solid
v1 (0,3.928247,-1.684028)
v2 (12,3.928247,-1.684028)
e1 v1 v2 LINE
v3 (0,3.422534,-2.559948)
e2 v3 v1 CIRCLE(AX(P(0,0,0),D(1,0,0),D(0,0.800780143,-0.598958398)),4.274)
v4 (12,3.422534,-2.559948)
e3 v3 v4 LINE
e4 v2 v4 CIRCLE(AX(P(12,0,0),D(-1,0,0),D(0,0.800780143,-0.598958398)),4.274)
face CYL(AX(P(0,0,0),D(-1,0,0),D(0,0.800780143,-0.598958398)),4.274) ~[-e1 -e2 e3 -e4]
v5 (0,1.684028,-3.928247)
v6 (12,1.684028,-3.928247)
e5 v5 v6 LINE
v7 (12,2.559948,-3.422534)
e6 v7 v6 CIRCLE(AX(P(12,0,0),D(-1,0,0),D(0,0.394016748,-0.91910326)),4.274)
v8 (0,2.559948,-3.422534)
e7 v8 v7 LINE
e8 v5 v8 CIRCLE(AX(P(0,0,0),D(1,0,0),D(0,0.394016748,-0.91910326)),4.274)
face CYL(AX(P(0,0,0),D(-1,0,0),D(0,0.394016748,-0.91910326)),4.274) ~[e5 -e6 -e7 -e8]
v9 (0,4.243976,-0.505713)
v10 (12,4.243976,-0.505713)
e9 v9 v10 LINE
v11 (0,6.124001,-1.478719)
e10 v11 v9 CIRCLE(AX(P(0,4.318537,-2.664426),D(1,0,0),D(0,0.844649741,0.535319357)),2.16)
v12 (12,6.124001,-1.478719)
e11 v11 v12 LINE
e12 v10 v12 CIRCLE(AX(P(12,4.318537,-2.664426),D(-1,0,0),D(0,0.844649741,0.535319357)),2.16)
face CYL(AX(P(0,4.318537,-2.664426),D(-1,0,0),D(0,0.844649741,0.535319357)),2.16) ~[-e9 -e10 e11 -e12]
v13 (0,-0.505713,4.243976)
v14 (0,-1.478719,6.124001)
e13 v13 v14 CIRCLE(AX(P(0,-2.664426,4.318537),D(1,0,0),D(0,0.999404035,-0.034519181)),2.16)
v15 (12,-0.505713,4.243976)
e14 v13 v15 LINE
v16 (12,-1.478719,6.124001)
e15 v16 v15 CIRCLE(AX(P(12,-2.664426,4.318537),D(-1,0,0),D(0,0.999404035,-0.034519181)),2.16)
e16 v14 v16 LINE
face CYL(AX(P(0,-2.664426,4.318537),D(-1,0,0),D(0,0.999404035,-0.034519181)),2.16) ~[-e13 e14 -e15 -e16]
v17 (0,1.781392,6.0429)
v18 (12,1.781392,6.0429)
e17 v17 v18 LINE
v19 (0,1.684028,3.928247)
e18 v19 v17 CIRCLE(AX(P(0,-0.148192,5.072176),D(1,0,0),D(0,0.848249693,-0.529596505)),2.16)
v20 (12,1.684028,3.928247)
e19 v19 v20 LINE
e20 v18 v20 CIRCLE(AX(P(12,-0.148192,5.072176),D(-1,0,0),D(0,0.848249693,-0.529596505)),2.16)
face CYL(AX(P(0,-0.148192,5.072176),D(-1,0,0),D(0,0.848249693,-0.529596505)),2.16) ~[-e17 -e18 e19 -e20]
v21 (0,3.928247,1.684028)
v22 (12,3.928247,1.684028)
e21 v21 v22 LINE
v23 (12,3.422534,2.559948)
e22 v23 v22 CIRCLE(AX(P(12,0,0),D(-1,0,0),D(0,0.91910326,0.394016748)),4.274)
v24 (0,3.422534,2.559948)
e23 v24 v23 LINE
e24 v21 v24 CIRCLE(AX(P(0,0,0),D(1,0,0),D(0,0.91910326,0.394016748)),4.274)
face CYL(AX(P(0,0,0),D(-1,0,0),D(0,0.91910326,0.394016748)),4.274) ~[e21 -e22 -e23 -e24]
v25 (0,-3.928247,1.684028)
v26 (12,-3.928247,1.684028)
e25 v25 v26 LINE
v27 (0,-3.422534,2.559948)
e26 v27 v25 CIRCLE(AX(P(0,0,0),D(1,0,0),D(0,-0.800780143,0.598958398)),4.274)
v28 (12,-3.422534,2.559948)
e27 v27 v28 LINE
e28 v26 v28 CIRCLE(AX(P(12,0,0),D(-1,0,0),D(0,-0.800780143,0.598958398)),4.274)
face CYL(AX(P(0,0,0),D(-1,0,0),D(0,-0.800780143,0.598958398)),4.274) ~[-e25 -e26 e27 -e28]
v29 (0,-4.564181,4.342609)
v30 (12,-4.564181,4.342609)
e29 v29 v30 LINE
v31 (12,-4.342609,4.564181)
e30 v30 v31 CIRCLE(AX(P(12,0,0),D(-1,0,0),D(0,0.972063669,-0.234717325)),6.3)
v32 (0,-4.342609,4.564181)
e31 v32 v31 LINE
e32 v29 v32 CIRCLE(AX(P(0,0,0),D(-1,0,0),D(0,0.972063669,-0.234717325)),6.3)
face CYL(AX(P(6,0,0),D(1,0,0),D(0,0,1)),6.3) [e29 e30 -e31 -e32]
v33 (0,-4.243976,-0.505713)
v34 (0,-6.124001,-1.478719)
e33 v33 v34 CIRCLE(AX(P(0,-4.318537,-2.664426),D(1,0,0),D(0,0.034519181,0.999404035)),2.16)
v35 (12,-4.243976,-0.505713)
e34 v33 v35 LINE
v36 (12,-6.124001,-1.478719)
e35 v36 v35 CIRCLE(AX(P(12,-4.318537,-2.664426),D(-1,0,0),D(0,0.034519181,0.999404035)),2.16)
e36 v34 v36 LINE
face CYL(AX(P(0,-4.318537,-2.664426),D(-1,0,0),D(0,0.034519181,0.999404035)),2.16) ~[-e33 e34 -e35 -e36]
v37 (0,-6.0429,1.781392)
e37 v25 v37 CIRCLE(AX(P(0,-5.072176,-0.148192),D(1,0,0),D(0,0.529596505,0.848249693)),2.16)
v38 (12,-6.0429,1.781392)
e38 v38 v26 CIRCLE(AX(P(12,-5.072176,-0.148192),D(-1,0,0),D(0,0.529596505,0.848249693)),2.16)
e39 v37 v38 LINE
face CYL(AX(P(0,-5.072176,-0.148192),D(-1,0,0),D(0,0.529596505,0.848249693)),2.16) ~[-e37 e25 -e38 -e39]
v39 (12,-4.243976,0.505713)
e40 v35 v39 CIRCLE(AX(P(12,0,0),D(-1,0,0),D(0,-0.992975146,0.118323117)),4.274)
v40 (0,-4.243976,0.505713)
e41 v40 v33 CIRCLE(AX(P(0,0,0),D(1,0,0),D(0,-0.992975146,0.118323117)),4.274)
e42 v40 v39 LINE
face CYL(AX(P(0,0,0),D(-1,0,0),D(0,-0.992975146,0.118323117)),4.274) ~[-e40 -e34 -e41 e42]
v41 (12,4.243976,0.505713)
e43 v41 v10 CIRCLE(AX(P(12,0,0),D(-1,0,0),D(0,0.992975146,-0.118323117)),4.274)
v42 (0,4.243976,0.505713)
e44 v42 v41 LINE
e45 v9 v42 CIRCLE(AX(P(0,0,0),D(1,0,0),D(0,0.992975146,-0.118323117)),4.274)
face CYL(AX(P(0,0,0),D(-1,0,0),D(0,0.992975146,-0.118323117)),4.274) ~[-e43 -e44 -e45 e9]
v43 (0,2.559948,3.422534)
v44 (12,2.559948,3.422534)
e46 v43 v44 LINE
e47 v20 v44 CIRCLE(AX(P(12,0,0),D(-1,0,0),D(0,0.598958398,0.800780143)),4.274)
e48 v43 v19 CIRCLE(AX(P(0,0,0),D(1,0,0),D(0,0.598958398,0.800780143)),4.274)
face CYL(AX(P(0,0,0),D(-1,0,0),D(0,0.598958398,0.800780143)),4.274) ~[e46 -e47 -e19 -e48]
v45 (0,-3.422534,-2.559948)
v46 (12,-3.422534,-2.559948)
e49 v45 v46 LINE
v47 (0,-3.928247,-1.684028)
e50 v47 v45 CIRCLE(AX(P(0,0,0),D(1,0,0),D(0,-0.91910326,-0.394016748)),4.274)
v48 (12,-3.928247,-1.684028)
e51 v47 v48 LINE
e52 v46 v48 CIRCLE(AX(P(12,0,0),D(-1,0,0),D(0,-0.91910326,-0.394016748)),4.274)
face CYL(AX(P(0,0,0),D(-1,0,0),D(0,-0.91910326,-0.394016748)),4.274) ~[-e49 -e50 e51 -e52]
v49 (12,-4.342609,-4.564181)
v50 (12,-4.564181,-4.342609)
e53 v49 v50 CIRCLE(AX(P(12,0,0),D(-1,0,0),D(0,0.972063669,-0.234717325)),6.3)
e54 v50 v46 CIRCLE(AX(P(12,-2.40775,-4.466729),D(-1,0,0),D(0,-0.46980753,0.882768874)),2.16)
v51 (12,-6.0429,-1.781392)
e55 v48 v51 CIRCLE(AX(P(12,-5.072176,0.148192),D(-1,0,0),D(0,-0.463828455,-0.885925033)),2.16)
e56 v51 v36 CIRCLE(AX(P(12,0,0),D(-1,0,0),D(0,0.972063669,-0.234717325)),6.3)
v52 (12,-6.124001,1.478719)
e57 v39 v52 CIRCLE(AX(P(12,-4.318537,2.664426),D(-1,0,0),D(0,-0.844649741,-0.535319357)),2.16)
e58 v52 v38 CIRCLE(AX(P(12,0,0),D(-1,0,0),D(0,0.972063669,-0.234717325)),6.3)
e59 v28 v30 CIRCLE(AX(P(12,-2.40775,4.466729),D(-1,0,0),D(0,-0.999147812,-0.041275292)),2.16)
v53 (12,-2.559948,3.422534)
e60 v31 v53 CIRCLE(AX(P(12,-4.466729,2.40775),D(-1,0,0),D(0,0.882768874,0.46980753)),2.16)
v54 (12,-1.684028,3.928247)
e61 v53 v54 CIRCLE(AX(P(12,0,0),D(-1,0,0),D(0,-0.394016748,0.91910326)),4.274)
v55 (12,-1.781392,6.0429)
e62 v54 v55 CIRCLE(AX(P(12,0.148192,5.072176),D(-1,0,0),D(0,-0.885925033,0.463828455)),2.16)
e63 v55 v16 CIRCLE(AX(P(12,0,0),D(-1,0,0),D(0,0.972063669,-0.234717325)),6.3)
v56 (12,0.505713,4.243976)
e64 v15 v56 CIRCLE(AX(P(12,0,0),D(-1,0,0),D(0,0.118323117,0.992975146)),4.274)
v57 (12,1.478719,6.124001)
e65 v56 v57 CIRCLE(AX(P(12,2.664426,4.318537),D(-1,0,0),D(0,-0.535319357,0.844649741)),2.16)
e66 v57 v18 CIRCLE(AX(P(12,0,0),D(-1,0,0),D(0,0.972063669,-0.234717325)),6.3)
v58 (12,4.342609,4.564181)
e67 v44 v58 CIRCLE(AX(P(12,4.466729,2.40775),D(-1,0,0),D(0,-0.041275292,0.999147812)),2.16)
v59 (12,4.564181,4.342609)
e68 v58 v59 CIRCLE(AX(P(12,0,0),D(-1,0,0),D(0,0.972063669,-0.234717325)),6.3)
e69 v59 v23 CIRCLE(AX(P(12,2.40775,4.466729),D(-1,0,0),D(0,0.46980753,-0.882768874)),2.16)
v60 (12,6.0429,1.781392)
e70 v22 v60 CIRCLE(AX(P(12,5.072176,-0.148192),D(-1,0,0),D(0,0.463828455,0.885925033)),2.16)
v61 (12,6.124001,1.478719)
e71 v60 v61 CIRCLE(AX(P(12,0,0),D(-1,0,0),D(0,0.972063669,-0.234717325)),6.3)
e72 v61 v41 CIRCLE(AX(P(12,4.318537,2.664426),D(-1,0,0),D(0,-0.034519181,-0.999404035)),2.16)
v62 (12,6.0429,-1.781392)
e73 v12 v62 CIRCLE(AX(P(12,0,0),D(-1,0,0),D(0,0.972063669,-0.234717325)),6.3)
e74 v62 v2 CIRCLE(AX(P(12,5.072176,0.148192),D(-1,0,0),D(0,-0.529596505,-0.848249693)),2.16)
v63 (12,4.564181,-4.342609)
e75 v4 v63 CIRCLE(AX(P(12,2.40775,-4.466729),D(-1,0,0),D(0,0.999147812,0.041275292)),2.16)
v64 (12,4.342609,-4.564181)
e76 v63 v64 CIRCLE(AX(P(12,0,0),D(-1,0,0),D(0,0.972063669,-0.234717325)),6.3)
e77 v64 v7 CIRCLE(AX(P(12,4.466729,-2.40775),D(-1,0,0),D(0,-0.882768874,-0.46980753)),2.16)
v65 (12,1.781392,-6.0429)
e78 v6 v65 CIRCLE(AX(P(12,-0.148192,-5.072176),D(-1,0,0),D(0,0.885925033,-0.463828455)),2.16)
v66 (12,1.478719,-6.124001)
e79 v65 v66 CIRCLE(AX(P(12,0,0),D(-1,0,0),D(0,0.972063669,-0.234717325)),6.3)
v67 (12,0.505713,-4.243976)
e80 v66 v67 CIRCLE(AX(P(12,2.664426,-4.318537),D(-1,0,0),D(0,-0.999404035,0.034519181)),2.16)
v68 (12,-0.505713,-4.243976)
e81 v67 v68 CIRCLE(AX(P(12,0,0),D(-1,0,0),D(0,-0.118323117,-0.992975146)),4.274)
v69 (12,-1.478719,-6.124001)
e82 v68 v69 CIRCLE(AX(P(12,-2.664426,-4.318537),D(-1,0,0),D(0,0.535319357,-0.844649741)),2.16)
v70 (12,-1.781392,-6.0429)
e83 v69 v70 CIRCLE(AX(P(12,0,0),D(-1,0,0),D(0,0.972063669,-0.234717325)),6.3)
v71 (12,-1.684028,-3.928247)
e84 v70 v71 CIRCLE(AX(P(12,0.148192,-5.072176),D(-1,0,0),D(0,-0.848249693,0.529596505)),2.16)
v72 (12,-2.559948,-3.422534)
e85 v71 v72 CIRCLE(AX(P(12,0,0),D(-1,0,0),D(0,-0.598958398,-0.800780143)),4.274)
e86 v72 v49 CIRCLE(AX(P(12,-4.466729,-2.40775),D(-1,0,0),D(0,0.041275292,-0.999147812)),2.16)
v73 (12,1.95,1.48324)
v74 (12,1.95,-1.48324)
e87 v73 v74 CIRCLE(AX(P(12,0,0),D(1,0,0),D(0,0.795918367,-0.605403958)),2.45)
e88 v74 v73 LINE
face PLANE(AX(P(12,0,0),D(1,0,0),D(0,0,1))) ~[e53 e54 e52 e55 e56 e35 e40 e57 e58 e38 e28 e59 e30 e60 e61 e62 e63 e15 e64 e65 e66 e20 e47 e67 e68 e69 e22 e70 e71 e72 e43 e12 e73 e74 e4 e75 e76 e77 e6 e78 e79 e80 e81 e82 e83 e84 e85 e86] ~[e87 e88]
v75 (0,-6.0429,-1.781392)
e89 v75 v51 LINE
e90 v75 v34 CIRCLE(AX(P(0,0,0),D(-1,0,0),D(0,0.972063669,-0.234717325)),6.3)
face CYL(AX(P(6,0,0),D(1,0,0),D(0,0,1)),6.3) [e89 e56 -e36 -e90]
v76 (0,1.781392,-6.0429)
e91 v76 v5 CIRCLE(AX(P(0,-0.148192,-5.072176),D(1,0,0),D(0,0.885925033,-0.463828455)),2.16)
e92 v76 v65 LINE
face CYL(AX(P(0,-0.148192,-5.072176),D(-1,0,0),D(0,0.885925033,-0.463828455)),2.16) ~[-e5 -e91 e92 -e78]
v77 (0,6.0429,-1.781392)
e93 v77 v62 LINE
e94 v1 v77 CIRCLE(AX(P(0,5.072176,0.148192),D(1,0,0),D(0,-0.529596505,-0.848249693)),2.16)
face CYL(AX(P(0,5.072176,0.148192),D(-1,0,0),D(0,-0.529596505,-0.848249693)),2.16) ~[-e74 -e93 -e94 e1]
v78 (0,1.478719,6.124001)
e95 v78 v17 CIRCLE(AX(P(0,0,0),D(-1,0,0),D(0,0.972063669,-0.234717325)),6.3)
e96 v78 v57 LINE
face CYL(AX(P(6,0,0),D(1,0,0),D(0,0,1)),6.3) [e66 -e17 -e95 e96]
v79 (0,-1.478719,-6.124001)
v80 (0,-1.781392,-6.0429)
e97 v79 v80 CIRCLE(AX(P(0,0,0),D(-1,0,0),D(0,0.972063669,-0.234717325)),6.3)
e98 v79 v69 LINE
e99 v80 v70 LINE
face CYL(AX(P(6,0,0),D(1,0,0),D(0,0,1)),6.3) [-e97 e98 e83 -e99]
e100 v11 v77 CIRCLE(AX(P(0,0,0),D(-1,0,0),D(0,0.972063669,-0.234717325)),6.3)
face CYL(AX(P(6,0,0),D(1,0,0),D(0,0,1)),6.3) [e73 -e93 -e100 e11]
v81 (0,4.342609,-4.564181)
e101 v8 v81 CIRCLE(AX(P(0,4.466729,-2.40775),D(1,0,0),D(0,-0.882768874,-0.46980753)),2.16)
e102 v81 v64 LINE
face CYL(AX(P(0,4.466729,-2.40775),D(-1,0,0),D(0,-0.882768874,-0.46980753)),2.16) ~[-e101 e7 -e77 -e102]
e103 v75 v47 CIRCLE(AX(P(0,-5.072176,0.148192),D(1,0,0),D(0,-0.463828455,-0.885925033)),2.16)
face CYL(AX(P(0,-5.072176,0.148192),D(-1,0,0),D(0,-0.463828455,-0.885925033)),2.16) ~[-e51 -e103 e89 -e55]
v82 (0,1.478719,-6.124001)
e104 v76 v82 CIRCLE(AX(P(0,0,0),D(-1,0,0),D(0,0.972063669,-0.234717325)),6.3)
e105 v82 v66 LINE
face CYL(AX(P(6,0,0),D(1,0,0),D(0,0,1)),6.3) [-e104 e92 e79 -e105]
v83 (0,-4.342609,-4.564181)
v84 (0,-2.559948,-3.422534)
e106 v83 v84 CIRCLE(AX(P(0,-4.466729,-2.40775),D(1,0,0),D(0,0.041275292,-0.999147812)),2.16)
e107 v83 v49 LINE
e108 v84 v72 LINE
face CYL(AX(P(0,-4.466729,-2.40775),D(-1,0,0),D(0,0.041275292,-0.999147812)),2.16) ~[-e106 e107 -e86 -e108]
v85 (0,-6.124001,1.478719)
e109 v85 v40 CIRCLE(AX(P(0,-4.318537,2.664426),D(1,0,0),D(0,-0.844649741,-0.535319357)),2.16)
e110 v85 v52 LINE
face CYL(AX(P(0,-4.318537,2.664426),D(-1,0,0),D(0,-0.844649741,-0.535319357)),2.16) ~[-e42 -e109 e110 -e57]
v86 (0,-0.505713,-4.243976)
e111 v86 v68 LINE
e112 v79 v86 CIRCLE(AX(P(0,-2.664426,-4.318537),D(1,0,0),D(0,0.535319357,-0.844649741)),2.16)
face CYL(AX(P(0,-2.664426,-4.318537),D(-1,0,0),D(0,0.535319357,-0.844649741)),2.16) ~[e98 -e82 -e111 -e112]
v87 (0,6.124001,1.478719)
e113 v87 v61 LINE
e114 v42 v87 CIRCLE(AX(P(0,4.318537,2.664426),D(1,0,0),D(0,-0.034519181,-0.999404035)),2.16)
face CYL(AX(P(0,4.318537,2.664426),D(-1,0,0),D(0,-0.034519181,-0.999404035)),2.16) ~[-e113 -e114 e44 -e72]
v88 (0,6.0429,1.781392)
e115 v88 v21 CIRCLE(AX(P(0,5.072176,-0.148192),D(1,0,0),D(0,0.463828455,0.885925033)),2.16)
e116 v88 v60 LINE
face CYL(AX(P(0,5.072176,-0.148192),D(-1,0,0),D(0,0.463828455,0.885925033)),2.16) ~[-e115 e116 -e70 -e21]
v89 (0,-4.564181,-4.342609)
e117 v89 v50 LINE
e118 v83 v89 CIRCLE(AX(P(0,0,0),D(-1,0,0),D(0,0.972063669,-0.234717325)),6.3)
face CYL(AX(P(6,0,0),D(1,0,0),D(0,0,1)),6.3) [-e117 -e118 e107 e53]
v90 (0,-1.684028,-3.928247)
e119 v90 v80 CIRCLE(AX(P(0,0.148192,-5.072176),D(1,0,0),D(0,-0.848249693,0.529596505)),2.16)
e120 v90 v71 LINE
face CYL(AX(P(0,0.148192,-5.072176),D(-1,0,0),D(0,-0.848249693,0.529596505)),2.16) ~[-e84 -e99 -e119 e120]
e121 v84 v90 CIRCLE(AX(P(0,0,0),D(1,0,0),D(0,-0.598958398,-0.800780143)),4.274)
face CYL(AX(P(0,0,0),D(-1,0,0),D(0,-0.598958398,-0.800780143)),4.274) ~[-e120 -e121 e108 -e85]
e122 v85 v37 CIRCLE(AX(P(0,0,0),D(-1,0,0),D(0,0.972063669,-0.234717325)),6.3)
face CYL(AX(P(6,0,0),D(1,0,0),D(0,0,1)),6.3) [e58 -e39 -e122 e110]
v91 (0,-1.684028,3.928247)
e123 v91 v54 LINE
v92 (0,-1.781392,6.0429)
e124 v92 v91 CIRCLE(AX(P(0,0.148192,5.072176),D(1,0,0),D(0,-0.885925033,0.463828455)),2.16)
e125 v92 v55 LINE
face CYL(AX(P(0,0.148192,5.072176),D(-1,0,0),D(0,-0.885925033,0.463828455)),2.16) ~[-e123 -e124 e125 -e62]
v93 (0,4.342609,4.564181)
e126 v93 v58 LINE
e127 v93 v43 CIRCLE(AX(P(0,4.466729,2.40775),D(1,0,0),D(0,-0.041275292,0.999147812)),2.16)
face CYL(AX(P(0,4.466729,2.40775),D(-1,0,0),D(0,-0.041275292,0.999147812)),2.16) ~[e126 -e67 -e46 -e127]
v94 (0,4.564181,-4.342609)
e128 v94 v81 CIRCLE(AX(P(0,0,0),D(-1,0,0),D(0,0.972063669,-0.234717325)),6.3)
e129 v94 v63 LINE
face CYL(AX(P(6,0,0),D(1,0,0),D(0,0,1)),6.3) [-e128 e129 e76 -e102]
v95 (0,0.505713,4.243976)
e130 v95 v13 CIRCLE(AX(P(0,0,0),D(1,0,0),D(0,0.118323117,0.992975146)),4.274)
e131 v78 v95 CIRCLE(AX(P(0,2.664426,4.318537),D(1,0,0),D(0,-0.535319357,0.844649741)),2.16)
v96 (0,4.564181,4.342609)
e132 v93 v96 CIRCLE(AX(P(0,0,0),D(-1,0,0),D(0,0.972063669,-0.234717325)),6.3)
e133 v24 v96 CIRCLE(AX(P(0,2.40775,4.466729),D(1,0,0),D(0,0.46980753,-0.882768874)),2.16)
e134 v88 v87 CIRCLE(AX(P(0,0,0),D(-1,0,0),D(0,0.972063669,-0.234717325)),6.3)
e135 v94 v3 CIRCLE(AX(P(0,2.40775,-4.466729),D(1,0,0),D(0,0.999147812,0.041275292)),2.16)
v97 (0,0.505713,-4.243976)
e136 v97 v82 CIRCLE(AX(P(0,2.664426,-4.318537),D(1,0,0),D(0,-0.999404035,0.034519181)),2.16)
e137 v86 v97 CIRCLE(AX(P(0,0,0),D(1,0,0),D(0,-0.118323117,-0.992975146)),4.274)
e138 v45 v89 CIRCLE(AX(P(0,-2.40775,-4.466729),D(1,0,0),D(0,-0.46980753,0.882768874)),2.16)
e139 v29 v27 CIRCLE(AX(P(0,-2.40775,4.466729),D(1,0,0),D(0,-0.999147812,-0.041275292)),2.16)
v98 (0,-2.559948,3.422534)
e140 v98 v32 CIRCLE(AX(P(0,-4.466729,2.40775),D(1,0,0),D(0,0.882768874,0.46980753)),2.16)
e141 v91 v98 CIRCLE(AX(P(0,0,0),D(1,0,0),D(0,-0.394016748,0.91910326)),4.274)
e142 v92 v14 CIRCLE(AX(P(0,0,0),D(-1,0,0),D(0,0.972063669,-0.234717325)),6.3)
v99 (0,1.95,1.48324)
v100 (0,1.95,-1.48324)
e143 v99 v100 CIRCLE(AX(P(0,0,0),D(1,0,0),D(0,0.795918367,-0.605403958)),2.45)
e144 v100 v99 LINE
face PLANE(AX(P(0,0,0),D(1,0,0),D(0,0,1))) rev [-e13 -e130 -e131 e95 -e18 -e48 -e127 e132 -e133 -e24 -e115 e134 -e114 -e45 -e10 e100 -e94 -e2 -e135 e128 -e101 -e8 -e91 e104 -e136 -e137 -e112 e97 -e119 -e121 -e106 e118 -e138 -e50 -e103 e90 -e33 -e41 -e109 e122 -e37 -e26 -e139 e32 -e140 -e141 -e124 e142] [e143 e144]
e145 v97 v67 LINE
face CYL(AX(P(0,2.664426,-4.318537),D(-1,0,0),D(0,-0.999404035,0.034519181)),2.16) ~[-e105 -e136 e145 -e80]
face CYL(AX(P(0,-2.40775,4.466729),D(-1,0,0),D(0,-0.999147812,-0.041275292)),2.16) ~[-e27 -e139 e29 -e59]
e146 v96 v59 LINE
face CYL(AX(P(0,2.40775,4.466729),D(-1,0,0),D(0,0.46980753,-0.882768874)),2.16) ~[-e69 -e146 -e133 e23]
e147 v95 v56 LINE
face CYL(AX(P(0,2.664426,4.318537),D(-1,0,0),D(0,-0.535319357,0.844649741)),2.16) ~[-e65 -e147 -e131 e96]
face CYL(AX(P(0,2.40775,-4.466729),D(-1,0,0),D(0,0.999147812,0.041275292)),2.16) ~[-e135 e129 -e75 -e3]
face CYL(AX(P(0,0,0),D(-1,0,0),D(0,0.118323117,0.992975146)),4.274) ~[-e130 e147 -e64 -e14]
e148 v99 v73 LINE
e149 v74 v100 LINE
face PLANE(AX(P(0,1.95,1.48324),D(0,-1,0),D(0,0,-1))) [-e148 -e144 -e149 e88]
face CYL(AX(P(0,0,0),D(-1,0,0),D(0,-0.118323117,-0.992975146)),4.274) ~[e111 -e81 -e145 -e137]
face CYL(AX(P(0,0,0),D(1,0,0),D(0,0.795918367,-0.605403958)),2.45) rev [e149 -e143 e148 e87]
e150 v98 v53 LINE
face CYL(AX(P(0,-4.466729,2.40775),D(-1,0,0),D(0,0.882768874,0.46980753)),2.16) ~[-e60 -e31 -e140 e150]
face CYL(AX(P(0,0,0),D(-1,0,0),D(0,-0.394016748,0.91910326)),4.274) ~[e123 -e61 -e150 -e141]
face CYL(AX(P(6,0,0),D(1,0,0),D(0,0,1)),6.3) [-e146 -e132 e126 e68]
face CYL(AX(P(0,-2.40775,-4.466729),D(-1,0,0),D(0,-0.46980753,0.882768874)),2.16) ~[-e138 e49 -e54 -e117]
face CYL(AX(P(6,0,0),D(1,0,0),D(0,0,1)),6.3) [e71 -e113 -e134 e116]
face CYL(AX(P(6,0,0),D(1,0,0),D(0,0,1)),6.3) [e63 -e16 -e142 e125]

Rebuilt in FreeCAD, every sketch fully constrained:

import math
import FreeCAD as App
import Part
import Sketcher
from FreeCAD import Vector


def add_polygon(sketch, points):
    """Adds a closed chain of lines whose ends are joined by coincident constraints."""
    first, n = sketch.GeometryCount, len(points)
    for a, b in zip(points, points[1:] + points[:1]):
        sketch.addGeometry(Part.LineSegment(App.Vector(*a, 0), App.Vector(*b, 0)), False)
    for i in range(n):
        sketch.addConstraint(Sketcher.Constraint("Coincident", first + i, 2, first + (i + 1) % n, 1))

doc = App.newDocument("Part")
body = doc.addObject("PartDesign::Body", "Body")

# Sketch on XZ plane
sketch1 = body.newObject("Sketcher::SketchObject", "Sketch")
sketch1.AttachmentSupport = (doc.getObject("XZ_Plane"), [""])
sketch1.MapMode = "FlatFace"
add_polygon(sketch1, [(0, -6), (0, 0), (12, 0), (12, -6)])  # lines 0-3
sketch1.addConstraint(Sketcher.Constraint("Vertical", 0))
sketch1.addConstraint(Sketcher.Constraint("Horizontal", 1))
sketch1.addConstraint(Sketcher.Constraint("Vertical", 2))
sketch1.addConstraint(Sketcher.Constraint("Horizontal", 3))
sketch1.addConstraint(Sketcher.Constraint("Coincident", 0, 2, -1, 1))
sketch1.addConstraint(Sketcher.Constraint("DistanceX", 1, 1, 1, 2, 12.0))
sketch1.addConstraint(Sketcher.Constraint("DistanceY", 0, 1, 0, 2, 6.3))
revolution = body.newObject("PartDesign::Revolution", "Revolution")
revolution.Profile = sketch1
revolution.ReferenceAxis = (sketch1, ["H_Axis"])
revolution.Angle = 360

# Sketch on YZ plane
sketch2 = body.newObject("Sketcher::SketchObject", "Sketch001")
sketch2.AttachmentSupport = (doc.getObject("YZ_Plane"), [""])
sketch2.MapMode = "FlatFace"
sketch2.addGeometry(Part.ArcOfCircle(Part.Circle(Vector(0, 0, 0), Vector(0, 0, 1), 4.3), math.radians(-6.8), math.radians(6.8)), False)
sketch2.addGeometry(Part.ArcOfCircle(Part.Circle(Vector(4.3, -2.7, 0), Vector(0, 0, 1), 2.2), math.radians(32), math.radians(92)), False)
sketch2.addGeometry(Part.ArcOfCircle(Part.Circle(Vector(0, 0, 0), Vector(0, 0, 1), 6.3), math.radians(-14), math.radians(14)), False)
sketch2.addGeometry(Part.ArcOfCircle(Part.Circle(Vector(4.3, 2.7, 0), Vector(0, 0, 1), 2.2), math.radians(-92), math.radians(-32)), False)
sketch2.addConstraint(Sketcher.Constraint("Coincident", 0, 1, 1, 2))
sketch2.addConstraint(Sketcher.Constraint("Coincident", 1, 1, 2, 1))
sketch2.addConstraint(Sketcher.Constraint("Coincident", 2, 2, 3, 2))
sketch2.addConstraint(Sketcher.Constraint("Coincident", 3, 1, 0, 2))
sketch2.addConstraint(Sketcher.Constraint("Coincident", 0, 3, -1, 1))
sketch2.addConstraint(Sketcher.Constraint("Coincident", 2, 3, -1, 1))
sketch2.addConstraint(Sketcher.Constraint("Equal", 1, 3))
sketch2.addConstraint(Sketcher.Constraint("Symmetric", 1, 3, 3, 3, -1))
sketch2.addConstraint(Sketcher.Constraint("Radius", 1, 2.16))
sketch2.addConstraint(Sketcher.Constraint("Radius", 0, 4.274))
sketch2.addConstraint(Sketcher.Constraint("Radius", 2, 6.3254))
sketch2.addConstraint(Sketcher.Constraint("DistanceX", -1, 1, 1, 1, 6.142981))
sketch2.addConstraint(Sketcher.Constraint("DistanceY", 1, 3, 3, 3, 5.328851))
pocket1 = body.newObject("PartDesign::Pocket", "Pocket")
pocket1.Profile = sketch2
pocket1.Type = "ThroughAll"
pocket1.Reversed = True
doc.recompute()

polarpattern = body.newObject("PartDesign::PolarPattern", "PolarPattern")
polarpattern.Originals = [pocket1]
polarpattern.Axis = (doc.getObject("X_Axis"), [""])
polarpattern.Angle = 360
polarpattern.Occurrences = 12
body.Tip = polarpattern

# Sketch on YZ plane
sketch3 = body.newObject("Sketcher::SketchObject", "Sketch002")
sketch3.AttachmentSupport = (doc.getObject("YZ_Plane"), [""])
sketch3.MapMode = "FlatFace"
sketch3.addGeometry(Part.LineSegment(Vector(1.9, -1.5, 0), Vector(1.9, 1.5, 0)), False)
sketch3.addGeometry(Part.ArcOfCircle(Part.Circle(Vector(0, 0, 0), Vector(0, 0, 1), 2.5), math.radians(37), math.radians(323)), False)
sketch3.addConstraint(Sketcher.Constraint("Coincident", 0, 1, 1, 2))
sketch3.addConstraint(Sketcher.Constraint("Coincident", 1, 1, 0, 2))
sketch3.addConstraint(Sketcher.Constraint("Vertical", 0))
sketch3.addConstraint(Sketcher.Constraint("Coincident", 1, 3, -1, 1))
sketch3.addConstraint(Sketcher.Constraint("Radius", 1, 2.45))
sketch3.addConstraint(Sketcher.Constraint("DistanceX", -1, 1, 0, 1, 1.95))
pocket2 = body.newObject("PartDesign::Pocket", "Pocket001")
pocket2.Profile = sketch3
pocket2.Length = 100.000102
pocket2.Midplane = True

doc.recompute()
